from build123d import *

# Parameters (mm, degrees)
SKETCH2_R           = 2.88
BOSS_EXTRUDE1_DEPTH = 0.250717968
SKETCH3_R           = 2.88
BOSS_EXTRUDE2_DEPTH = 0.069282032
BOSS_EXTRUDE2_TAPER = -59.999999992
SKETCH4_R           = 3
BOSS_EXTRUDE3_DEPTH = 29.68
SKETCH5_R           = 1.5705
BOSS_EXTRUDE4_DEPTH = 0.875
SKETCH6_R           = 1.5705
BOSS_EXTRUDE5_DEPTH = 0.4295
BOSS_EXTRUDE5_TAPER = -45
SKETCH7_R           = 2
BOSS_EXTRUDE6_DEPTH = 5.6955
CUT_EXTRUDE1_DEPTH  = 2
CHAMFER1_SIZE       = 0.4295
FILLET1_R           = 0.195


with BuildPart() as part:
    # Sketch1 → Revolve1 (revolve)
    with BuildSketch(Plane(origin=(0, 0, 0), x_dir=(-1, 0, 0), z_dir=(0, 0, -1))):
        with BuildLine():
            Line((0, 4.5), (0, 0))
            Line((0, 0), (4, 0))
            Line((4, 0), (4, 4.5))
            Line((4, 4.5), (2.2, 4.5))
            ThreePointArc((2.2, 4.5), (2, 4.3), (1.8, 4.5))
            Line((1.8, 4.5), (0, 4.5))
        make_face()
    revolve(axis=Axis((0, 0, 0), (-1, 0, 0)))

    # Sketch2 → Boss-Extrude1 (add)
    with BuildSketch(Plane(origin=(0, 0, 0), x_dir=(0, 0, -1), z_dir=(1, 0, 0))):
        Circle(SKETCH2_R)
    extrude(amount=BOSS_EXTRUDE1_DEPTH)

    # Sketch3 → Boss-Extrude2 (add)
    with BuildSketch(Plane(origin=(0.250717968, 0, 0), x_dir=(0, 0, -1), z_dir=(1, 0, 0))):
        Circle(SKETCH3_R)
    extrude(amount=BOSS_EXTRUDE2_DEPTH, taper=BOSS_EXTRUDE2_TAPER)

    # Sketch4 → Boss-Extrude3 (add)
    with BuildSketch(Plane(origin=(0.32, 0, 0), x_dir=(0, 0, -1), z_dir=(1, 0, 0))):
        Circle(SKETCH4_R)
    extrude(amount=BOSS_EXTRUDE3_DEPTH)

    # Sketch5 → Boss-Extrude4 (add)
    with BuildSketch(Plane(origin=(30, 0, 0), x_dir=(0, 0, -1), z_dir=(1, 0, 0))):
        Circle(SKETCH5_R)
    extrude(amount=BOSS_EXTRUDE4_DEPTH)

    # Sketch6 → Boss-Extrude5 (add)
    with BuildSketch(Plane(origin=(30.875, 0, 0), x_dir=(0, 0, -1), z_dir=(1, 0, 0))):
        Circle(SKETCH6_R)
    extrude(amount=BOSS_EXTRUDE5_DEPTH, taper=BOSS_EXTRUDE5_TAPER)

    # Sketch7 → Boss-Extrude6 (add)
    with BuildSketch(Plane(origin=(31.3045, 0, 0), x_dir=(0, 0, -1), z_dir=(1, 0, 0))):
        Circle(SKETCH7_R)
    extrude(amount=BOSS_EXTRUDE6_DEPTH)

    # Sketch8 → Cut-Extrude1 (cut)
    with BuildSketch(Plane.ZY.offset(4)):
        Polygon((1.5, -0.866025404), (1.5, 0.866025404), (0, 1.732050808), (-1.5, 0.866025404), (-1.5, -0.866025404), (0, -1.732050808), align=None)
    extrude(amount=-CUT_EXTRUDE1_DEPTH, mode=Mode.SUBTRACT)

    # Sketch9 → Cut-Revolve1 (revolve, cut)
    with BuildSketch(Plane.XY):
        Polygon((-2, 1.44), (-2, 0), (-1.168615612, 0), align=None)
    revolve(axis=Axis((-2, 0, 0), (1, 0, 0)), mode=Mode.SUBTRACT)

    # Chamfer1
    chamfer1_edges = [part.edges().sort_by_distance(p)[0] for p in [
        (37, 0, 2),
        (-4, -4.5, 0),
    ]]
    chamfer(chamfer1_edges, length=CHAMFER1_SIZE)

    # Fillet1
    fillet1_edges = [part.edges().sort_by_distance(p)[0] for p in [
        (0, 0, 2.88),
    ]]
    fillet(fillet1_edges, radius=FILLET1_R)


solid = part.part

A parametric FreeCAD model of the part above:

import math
import FreeCAD as App
import Part
import Sketcher
Q = App.Units.Quantity


def edges_at(feature, points):
    """Names of the edges that pass closest to the given points."""
    edges = feature.Shape.Edges
    near = lambda p: min(range(len(edges)), key=lambda i: edges[i].distToShape(Part.Vertex(*p))[0])
    return sorted({f"Edge{near(p) + 1}" for p in points})

doc = App.newDocument("Part")
body = doc.addObject("PartDesign::Body", "Body")

sketch1 = doc.addObject("Sketcher::SketchObject", "Sketch")
body.addObject(sketch1)
sketch1.AttachmentSupport = (doc.XY_Plane, [""])
sketch1.MapMode = "FlatFace"
sketch1.addGeometry(Part.LineSegment(App.Vector(0, 4.5, 0), App.Vector(0, 0, 0)), False)
sketch1.addGeometry(Part.LineSegment(App.Vector(0, 0, 0), App.Vector(-4, 0, 0)), False)
sketch1.addGeometry(Part.LineSegment(App.Vector(-4, 0, 0), App.Vector(-4, 4.5, 0)), False)
sketch1.addGeometry(Part.LineSegment(App.Vector(-4, 4.5, 0), App.Vector(-2.2, 4.5, 0)), False)
sketch1.addGeometry(Part.ArcOfCircle(Part.Circle(App.Vector(-2, 4.5, 0), App.Vector(0, 0, 1), 0.2), math.radians(180), math.radians(360)), False)
sketch1.addGeometry(Part.LineSegment(App.Vector(-1.8, 4.5, 0), App.Vector(0, 4.5, 0)), False)
sketch1.addConstraint(Sketcher.Constraint("Coincident", 0, 2, 1, 1))
sketch1.addConstraint(Sketcher.Constraint("Coincident", 1, 2, 2, 1))
sketch1.addConstraint(Sketcher.Constraint("Coincident", 2, 2, 3, 1))
sketch1.addConstraint(Sketcher.Constraint("Coincident", 3, 2, 4, 1))
sketch1.addConstraint(Sketcher.Constraint("Coincident", 4, 2, 5, 1))
sketch1.addConstraint(Sketcher.Constraint("Coincident", 5, 2, 0, 1))
sketch1.addConstraint(Sketcher.Constraint("Vertical", 0))
sketch1.addConstraint(Sketcher.Constraint("Horizontal", 1))
sketch1.addConstraint(Sketcher.Constraint("Vertical", 2))
sketch1.addConstraint(Sketcher.Constraint("Horizontal", 3))
sketch1.addConstraint(Sketcher.Constraint("Horizontal", 5))
sketch1.addConstraint(Sketcher.Constraint("Coincident", 0, 2, -1, 1))
sketch1.addConstraint(Sketcher.Constraint("Horizontal", 4, 3, 2, 2))
sketch1.addConstraint(Sketcher.Constraint("Horizontal", 3, 2, 4, 2))
sketch1.addConstraint(Sketcher.Constraint("Equal", 3, 5))
sketch1.addConstraint(Sketcher.Constraint("Radius", 4, 0.2))
sketch1.addConstraint(Sketcher.Constraint("DistanceX", 1, 2, 1, 1, 4.0))
sketch1.addConstraint(Sketcher.Constraint("DistanceY", 0, 2, 0, 1, 4.5))
revolution = doc.addObject("PartDesign::Revolution", "Revolution")
body.addObject(revolution)
revolution.Profile = sketch1
revolution.ReferenceAxis = (sketch1, ["H_Axis"])
revolution.Angle = 360

sketch2 = doc.addObject("Sketcher::SketchObject", "Sketch001")
body.addObject(sketch2)
sketch2.AttachmentSupport = (doc.YZ_Plane, [""])
sketch2.MapMode = "FlatFace"
sketch2.addGeometry(Part.Circle(App.Vector(0, 0, 0), App.Vector(0, 0, 1), 2.9), False)
sketch2.addConstraint(Sketcher.Constraint("Coincident", 0, 3, -1, 1))
sketch2.addConstraint(Sketcher.Constraint("Diameter", 0, 5.76))
pad1 = doc.addObject("PartDesign::Pad", "Pad")
body.addObject(pad1)
pad1.Profile = sketch2
pad1.Length = 0.250718

sketch3 = doc.addObject("Sketcher::SketchObject", "Sketch002")
body.addObject(sketch3)
sketch3.AttachmentSupport = (doc.YZ_Plane, [""])
sketch3.MapMode = "FlatFace"
sketch3.AttachmentOffset = App.Placement(App.Vector(0, 0, 0.250718), App.Rotation())
sketch3.addGeometry(Part.Circle(App.Vector(0, 0, 0), App.Vector(0, 0, 1), 2.9), False)
sketch3.addConstraint(Sketcher.Constraint("Coincident", 0, 3, -1, 1))
sketch3.addConstraint(Sketcher.Constraint("Diameter", 0, 5.76))
pad2 = doc.addObject("PartDesign::Pad", "Pad001")
body.addObject(pad2)
pad2.Profile = sketch3
pad2.Length = 0.069282
pad2.TaperAngle = 60

sketch4 = doc.addObject("Sketcher::SketchObject", "Sketch003")
body.addObject(sketch4)
sketch4.AttachmentSupport = (doc.YZ_Plane, [""])
sketch4.MapMode = "FlatFace"
sketch4.AttachmentOffset = App.Placement(App.Vector(0, 0, 0.32), App.Rotation())
sketch4.addGeometry(Part.Circle(App.Vector(0, 0, 0), App.Vector(0, 0, 1), 3), False)
sketch4.addConstraint(Sketcher.Constraint("Coincident", 0, 3, -1, 1))
sketch4.addConstraint(Sketcher.Constraint("Diameter", 0, 6.0))
pad3 = doc.addObject("PartDesign::Pad", "Pad002")
body.addObject(pad3)
pad3.Profile = sketch4
pad3.Length = 29.68

sketch5 = doc.addObject("Sketcher::SketchObject", "Sketch004")
body.addObject(sketch5)
sketch5.AttachmentSupport = (doc.YZ_Plane, [""])
sketch5.MapMode = "FlatFace"
sketch5.AttachmentOffset = App.Placement(App.Vector(0, 0, 30), App.Rotation())
sketch5.addGeometry(Part.Circle(App.Vector(0, 0, 0), App.Vector(0, 0, 1), 1.6), False)
sketch5.addConstraint(Sketcher.Constraint("Coincident", 0, 3, -1, 1))
sketch5.addConstraint(Sketcher.Constraint("Diameter", 0, 3.141))
pad4 = doc.addObject("PartDesign::Pad", "Pad003")
body.addObject(pad4)
pad4.Profile = sketch5
pad4.Length = 0.875

sketch6 = doc.addObject("Sketcher::SketchObject", "Sketch005")
body.addObject(sketch6)
sketch6.AttachmentSupport = (doc.YZ_Plane, [""])
sketch6.MapMode = "FlatFace"
sketch6.AttachmentOffset = App.Placement(App.Vector(0, 0, 30.875), App.Rotation())
sketch6.addGeometry(Part.Circle(App.Vector(0, 0, 0), App.Vector(0, 0, 1), 1.6), False)
sketch6.addConstraint(Sketcher.Constraint("Coincident", 0, 3, -1, 1))
sketch6.addConstraint(Sketcher.Constraint("Diameter", 0, 3.141))
pad5 = doc.addObject("PartDesign::Pad", "Pad004")
body.addObject(pad5)
pad5.Profile = sketch6
pad5.Length = 0.4295
pad5.TaperAngle = 45

sketch7 = doc.addObject("Sketcher::SketchObject", "Sketch006")
body.addObject(sketch7)
sketch7.AttachmentSupport = (doc.YZ_Plane, [""])
sketch7.MapMode = "FlatFace"
sketch7.AttachmentOffset = App.Placement(App.Vector(0, 0, 31.3045), App.Rotation())
sketch7.addGeometry(Part.Circle(App.Vector(0, 0, 0), App.Vector(0, 0, 1), 2), False)
sketch7.addConstraint(Sketcher.Constraint("Coincident", 0, 3, -1, 1))
sketch7.addConstraint(Sketcher.Constraint("Diameter", 0, 4.0))
pad6 = doc.addObject("PartDesign::Pad", "Pad005")
body.addObject(pad6)
pad6.Profile = sketch7
pad6.Length = 5.6955

sketch8 = doc.addObject("Sketcher::SketchObject", "Sketch007")
body.addObject(sketch8)
sketch8.AttachmentSupport = (doc.YZ_Plane, [""])
sketch8.MapMode = "FlatFace"
sketch8.AttachmentOffset = App.Placement(App.Vector(0, 0, -4), App.Rotation())
sketch8.addGeometry(Part.LineSegment(App.Vector(-0.9, 1.5, 0), App.Vector(0.9, 1.5, 0)), False)
sketch8.addGeometry(Part.LineSegment(App.Vector(0.9, 1.5, 0), App.Vector(1.7, 0, 0)), False)
sketch8.addGeometry(Part.LineSegment(App.Vector(1.7, 0, 0), App.Vector(0.9, -1.5, 0)), False)
sketch8.addGeometry(Part.LineSegment(App.Vector(0.9, -1.5, 0), App.Vector(-0.9, -1.5, 0)), False)
sketch8.addGeometry(Part.LineSegment(App.Vector(-0.9, -1.5, 0), App.Vector(-1.7, 0, 0)), False)
sketch8.addGeometry(Part.LineSegment(App.Vector(-1.7, 0, 0), App.Vector(-0.9, 1.5, 0)), False)
sketch8.addConstraint(Sketcher.Constraint("Coincident", 0, 2, 1, 1))
sketch8.addConstraint(Sketcher.Constraint("Coincident", 1, 2, 2, 1))
sketch8.addConstraint(Sketcher.Constraint("Coincident", 2, 2, 3, 1))
sketch8.addConstraint(Sketcher.Constraint("Coincident", 3, 2, 4, 1))
sketch8.addConstraint(Sketcher.Constraint("Coincident", 4, 2, 5, 1))
sketch8.addConstraint(Sketcher.Constraint("Coincident", 5, 2, 0, 1))
sketch8.addConstraint(Sketcher.Constraint("Horizontal", 0))
sketch8.addConstraint(Sketcher.Constraint("Horizontal", 3))
sketch8.addConstraint(Sketcher.Constraint("Symmetric", 0, 2, 3, 2, -1, 1))
sketch8.addConstraint(Sketcher.Constraint("Symmetric", 1, 2, 4, 2, -1, 1))
sketch8.addConstraint(Sketcher.Constraint("PointOnObject", 1, 2, -1))
sketch8.addConstraint(Sketcher.Constraint("Parallel", 2, 5))
sketch8.addConstraint(Sketcher.Constraint("Vertical", 0, 2, 2, 2))
sketch8.addConstraint(Sketcher.Constraint("Angle", 1, Q("-60 deg")))
sketch8.addConstraint(Sketcher.Constraint("DistanceY", 2, 2, 0, 2, 3.0))
sketch8.addConstraint(Sketcher.Constraint("DistanceX", 0, 1, 0, 2, 1.732051))
pocket1 = doc.addObject("PartDesign::Pocket", "Pocket")
body.addObject(pocket1)
pocket1.Profile = sketch8
pocket1.Length = 2
pocket1.Reversed = True

sketch9 = doc.addObject("Sketcher::SketchObject", "Sketch008")
body.addObject(sketch9)
sketch9.AttachmentSupport = (doc.XY_Plane, [""])
sketch9.MapMode = "FlatFace"
sketch9.addGeometry(Part.LineSegment(App.Vector(-2, 1.4, 0), App.Vector(-2, 0, 0)), False)
sketch9.addGeometry(Part.LineSegment(App.Vector(-2, 0, 0), App.Vector(-1.2, 0, 0)), False)
sketch9.addGeometry(Part.LineSegment(App.Vector(-1.2, 0, 0), App.Vector(-2, 1.4, 0)), False)
sketch9.addConstraint(Sketcher.Constraint("Coincident", 0, 2, 1, 1))
sketch9.addConstraint(Sketcher.Constraint("Coincident", 1, 2, 2, 1))
sketch9.addConstraint(Sketcher.Constraint("Coincident", 2, 2, 0, 1))
sketch9.addConstraint(Sketcher.Constraint("Vertical", 0))
sketch9.addConstraint(Sketcher.Constraint("Horizontal", 1))
sketch9.addConstraint(Sketcher.Constraint("PointOnObject", 0, 2, -1))
sketch9.addConstraint(Sketcher.Constraint("Angle", 2, Q("120 deg")))
sketch9.addConstraint(Sketcher.Constraint("DistanceX", 0, 2, -1, 1, 2.0))
sketch9.addConstraint(Sketcher.Constraint("DistanceY", 0, 2, 0, 1, 1.44))
groove = doc.addObject("PartDesign::Groove", "Groove")
body.addObject(groove)
groove.Profile = sketch9
groove.ReferenceAxis = (sketch9, ["H_Axis"])
groove.Angle = 360
doc.recompute()

chamfer = doc.addObject("PartDesign::Chamfer", "Chamfer")
body.addObject(chamfer)
chamfer.Base = (groove, edges_at(groove, [(37, 0, 2), (-4, -4.5, 0)]))
chamfer.Size = 0.4295
doc.recompute()

fillet = doc.addObject("PartDesign::Fillet", "Fillet")
body.addObject(fillet)
fillet.Base = (chamfer, edges_at(chamfer, [(0, 0, 2.88)]))
fillet.Radius = 0.195

doc.recompute()
